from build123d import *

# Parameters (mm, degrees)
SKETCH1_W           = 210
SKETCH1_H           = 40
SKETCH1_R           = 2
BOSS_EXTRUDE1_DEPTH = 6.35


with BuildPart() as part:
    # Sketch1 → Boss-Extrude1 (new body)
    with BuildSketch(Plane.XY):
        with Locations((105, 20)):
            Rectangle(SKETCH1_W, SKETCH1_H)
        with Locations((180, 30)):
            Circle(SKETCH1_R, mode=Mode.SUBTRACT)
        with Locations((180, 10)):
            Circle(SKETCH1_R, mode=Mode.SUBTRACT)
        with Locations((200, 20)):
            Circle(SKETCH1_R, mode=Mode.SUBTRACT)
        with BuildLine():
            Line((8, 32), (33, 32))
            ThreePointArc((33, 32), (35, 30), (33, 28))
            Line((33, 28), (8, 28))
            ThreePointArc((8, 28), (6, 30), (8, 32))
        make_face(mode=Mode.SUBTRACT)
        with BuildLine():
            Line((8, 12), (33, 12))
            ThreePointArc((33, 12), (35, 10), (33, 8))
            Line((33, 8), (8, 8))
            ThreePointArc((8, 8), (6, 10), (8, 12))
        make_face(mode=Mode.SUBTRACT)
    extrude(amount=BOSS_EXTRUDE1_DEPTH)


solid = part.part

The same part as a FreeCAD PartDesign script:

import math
import FreeCAD as App
import Part
import Sketcher
from FreeCAD import Vector


def add_polygon(sketch, points):
    """Adds a closed chain of lines whose ends are joined by coincident constraints."""
    first, n = sketch.GeometryCount, len(points)
    for a, b in zip(points, points[1:] + points[:1]):
        sketch.addGeometry(Part.LineSegment(App.Vector(*a, 0), App.Vector(*b, 0)), False)
    for i in range(n):
        sketch.addConstraint(Sketcher.Constraint("Coincident", first + i, 2, first + (i + 1) % n, 1))

doc = App.newDocument("Part")
body = doc.addObject("PartDesign::Body", "Body")

# Sketch on XY plane
sketch1 = body.newObject("Sketcher::SketchObject", "Sketch")
sketch1.AttachmentSupport = (doc.getObject("XY_Plane"), [""])
sketch1.MapMode = "FlatFace"
add_polygon(sketch1, [(0, 40), (0, 0), (210, 0), (210, 40)])  # lines 0-3
sketch1.addGeometry(Part.ArcOfCircle(Part.Circle(Vector(8, 10, 0), Vector(0, 0, 1), 2), math.radians(90), math.radians(270)), False)  # 4
sketch1.addGeometry(Part.LineSegment(Vector(8, 12, 0), Vector(33, 12, 0)), False)  # 5
sketch1.addGeometry(Part.ArcOfCircle(Part.Circle(Vector(33, 10, 0), Vector(0, 0, 1), 2), math.radians(-90), math.radians(90)), False)  # 6
sketch1.addGeometry(Part.LineSegment(Vector(33, 8, 0), Vector(8, 8, 0)), False)  # 7
sketch1.addGeometry(Part.Circle(Vector(180, 10, 0), Vector(0, 0, 1), 2), False)  # 8
sketch1.addGeometry(Part.ArcOfCircle(Part.Circle(Vector(8, 30, 0), Vector(0, 0, 1), 2), math.radians(90), math.radians(270)), False)  # 9
sketch1.addGeometry(Part.LineSegment(Vector(8, 32, 0), Vector(33, 32, 0)), False)  # 10
sketch1.addGeometry(Part.ArcOfCircle(Part.Circle(Vector(33, 30, 0), Vector(0, 0, 1), 2), math.radians(-90), math.radians(90)), False)  # 11
sketch1.addGeometry(Part.LineSegment(Vector(33, 28, 0), Vector(8, 28, 0)), False)  # 12
sketch1.addGeometry(Part.Circle(Vector(200, 20, 0), Vector(0, 0, 1), 2), False)  # 13
sketch1.addGeometry(Part.Circle(Vector(180, 30, 0), Vector(0, 0, 1), 2), False)  # 14
sketch1.addConstraint([
    Sketcher.Constraint("Tangent", 4, 1, 5, 1),
    Sketcher.Constraint("Tangent", 5, 2, 6, 2),
    Sketcher.Constraint("Tangent", 6, 1, 7, 1),
    Sketcher.Constraint("Tangent", 7, 2, 4, 2),
    Sketcher.Constraint("Tangent", 9, 1, 10, 1),
    Sketcher.Constraint("Tangent", 10, 2, 11, 2),
    Sketcher.Constraint("Tangent", 11, 1, 12, 1),
    Sketcher.Constraint("Tangent", 12, 2, 9, 2),
    Sketcher.Constraint("Vertical", 0),
    Sketcher.Constraint("Horizontal", 1),
    Sketcher.Constraint("Vertical", 2),
    Sketcher.Constraint("Horizontal", 3),
    Sketcher.Constraint("Horizontal", 5),
    Sketcher.Constraint("Horizontal", 7),
    Sketcher.Constraint("Horizontal", 10),
    Sketcher.Constraint("Horizontal", 12),
    Sketcher.Constraint("Coincident", 0, 2, -1, 1),
    Sketcher.Constraint("Equal", 6, 8),
    Sketcher.Constraint("Equal", 8, 9),
    Sketcher.Constraint("Equal", 11, 13),
    Sketcher.Constraint("Equal", 13, 14),
    Sketcher.Constraint("Horizontal", 6, 3, 8, 3),
    Sketcher.Constraint("Horizontal", 11, 3, 14, 3),
    Sketcher.Constraint("Vertical", 4, 3, 9, 3),
    Sketcher.Constraint("Vertical", 6, 3, 11, 3),
    Sketcher.Constraint("Vertical", 8, 3, 14, 3),
    Sketcher.Constraint("Diameter", 8, 4.0),
    Sketcher.Constraint("DistanceX", 1, 1, 1, 2, 210.0),
    Sketcher.Constraint("DistanceX", 5, 1, 5, 2, 25.0),
    Sketcher.Constraint("DistanceY", 0, 2, 0, 1, 40.0),
    Sketcher.Constraint("DistanceX", -1, 1, 4, 3, 8.0),
    Sketcher.Constraint("DistanceY", -1, 1, 4, 3, 10.0),
    Sketcher.Constraint("DistanceX", -1, 1, 8, 3, 180.0),
    Sketcher.Constraint("DistanceY", -1, 1, 9, 3, 30.0),
    Sketcher.Constraint("DistanceX", -1, 1, 13, 3, 200.0),
    Sketcher.Constraint("DistanceY", -1, 1, 13, 3, 20.0),
])
pad1 = body.newObject("PartDesign::Pad", "Pad")
pad1.Profile = sketch1
pad1.Length = 6.35

doc.recompute()
